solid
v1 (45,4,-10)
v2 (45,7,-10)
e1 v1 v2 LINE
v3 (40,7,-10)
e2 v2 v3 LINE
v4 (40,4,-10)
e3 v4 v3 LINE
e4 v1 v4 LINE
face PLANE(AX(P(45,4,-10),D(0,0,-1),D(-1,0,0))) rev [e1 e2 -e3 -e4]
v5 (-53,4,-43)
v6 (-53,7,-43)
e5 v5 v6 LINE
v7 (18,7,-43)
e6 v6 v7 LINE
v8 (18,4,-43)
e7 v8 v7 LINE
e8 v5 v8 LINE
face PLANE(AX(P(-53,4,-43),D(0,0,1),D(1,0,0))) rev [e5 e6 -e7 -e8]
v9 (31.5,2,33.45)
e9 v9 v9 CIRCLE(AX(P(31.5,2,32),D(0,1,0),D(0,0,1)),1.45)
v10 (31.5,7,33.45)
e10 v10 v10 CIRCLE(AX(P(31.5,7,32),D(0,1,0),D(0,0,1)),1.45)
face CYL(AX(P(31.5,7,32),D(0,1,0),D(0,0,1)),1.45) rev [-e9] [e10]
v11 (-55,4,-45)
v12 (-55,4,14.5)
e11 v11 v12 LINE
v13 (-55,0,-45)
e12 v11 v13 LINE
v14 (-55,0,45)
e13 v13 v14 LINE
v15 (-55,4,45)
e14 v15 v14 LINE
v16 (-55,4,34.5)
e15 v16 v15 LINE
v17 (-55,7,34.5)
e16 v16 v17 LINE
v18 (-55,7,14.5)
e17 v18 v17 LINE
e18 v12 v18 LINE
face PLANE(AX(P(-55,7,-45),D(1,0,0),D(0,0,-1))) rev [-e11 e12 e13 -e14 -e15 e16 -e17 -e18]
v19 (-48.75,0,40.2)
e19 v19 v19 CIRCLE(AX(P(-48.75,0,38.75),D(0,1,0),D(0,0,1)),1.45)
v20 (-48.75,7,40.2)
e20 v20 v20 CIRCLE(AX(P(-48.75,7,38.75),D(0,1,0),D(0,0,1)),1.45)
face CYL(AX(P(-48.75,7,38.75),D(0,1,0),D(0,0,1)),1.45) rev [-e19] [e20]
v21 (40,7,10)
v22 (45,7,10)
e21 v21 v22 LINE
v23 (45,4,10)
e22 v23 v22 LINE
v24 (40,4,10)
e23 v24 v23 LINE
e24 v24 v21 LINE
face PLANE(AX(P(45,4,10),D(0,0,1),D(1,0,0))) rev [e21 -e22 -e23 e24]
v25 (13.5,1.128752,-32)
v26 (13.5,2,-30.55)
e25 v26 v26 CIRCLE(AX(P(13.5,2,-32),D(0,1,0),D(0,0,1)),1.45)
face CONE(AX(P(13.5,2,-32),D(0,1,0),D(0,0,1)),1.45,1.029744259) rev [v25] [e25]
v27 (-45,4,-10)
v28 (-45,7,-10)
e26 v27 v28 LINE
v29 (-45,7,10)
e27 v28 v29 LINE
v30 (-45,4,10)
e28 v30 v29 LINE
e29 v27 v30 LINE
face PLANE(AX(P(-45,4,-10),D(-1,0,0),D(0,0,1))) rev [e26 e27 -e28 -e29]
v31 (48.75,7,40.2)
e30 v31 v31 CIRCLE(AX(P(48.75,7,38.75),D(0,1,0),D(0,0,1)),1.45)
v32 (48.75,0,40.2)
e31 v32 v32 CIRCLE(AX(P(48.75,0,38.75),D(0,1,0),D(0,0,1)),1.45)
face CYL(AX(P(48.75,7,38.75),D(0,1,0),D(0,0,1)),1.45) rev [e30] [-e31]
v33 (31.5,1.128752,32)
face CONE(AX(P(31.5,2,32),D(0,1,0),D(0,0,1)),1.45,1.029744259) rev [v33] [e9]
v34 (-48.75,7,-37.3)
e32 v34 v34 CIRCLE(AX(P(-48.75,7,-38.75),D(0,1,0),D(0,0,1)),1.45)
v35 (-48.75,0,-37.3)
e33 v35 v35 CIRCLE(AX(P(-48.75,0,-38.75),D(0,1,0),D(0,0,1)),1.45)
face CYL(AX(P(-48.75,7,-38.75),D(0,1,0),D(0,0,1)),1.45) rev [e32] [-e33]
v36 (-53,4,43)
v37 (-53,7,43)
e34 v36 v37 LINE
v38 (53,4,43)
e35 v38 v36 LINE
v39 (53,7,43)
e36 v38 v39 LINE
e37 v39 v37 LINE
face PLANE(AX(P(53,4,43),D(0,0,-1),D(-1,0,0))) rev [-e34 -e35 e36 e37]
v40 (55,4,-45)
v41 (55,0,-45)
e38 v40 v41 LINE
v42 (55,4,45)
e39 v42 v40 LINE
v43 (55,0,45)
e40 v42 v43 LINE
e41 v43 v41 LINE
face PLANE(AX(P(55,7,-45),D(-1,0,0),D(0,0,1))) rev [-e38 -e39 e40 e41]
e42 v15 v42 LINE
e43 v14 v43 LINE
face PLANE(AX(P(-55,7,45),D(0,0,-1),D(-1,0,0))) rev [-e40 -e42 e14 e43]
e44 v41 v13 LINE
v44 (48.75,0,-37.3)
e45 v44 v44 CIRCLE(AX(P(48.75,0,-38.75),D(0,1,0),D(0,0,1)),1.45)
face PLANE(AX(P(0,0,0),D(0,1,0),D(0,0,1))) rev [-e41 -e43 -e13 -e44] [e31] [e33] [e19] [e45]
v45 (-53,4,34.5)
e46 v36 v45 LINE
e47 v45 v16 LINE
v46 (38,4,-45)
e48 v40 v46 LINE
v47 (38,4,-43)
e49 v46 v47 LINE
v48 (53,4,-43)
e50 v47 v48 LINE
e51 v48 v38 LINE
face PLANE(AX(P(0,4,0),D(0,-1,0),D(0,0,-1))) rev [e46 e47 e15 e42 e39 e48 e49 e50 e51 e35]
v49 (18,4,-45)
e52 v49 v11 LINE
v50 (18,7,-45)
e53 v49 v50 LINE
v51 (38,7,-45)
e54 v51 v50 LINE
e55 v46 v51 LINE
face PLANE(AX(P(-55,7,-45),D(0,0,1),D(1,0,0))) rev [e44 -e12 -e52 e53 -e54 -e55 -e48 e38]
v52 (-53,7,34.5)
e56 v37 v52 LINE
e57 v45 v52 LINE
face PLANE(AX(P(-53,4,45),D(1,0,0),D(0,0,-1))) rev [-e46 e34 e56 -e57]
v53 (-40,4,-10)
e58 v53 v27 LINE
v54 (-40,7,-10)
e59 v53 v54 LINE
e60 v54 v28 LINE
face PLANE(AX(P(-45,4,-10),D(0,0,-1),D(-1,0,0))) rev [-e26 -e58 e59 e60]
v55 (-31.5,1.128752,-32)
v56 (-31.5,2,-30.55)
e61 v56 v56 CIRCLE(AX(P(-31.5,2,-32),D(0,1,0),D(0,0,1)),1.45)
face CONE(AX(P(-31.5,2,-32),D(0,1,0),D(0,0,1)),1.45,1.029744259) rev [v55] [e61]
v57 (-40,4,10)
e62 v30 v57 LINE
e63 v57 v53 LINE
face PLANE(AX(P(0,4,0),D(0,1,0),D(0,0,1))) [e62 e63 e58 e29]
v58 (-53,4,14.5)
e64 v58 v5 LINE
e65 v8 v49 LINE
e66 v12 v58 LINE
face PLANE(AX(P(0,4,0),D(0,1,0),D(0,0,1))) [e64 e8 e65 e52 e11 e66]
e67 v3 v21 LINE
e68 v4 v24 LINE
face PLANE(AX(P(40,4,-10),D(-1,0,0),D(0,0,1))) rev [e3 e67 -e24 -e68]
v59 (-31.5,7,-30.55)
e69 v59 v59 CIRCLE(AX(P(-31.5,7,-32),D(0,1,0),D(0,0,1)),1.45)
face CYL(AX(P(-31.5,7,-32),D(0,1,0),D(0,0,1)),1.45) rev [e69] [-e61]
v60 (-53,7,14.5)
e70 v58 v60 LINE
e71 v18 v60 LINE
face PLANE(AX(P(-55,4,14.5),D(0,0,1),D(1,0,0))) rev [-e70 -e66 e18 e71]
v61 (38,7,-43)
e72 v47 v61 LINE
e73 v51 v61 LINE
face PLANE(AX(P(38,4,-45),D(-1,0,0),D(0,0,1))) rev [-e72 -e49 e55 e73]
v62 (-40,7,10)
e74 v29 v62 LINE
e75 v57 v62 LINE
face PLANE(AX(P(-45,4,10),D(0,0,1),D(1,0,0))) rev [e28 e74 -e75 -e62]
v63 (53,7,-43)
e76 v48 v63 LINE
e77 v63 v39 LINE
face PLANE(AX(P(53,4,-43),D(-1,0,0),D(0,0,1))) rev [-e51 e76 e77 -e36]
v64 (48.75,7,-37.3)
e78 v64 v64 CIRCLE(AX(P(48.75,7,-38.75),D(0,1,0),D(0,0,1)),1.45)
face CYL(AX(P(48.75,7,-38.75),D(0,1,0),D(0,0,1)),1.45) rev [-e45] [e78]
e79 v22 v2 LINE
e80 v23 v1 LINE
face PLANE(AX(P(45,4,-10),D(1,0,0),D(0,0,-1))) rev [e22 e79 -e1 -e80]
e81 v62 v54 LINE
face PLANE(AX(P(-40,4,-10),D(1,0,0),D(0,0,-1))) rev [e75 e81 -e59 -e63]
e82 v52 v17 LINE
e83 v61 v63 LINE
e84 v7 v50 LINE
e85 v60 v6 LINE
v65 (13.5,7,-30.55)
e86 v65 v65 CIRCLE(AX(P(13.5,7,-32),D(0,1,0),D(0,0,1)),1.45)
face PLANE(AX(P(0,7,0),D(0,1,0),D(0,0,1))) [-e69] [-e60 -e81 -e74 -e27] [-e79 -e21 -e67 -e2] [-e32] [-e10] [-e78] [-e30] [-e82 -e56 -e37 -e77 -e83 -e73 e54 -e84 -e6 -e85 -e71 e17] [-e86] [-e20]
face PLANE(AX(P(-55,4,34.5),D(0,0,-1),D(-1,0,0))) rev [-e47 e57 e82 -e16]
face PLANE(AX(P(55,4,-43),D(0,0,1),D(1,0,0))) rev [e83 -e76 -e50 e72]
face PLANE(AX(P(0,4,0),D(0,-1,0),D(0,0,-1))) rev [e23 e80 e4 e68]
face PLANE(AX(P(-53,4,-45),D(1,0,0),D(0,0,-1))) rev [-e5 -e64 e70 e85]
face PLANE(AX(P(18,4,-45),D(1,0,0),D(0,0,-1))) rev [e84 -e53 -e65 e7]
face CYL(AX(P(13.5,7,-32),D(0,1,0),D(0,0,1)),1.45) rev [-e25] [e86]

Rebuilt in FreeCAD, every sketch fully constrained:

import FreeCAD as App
import Part
import Sketcher

V = App.Vector
Q = App.Units.Quantity


def add_polygon(sketch, points):
    """Adds a closed chain of lines whose ends are joined by coincident constraints."""
    first, n = sketch.GeometryCount, len(points)
    for a, b in zip(points, points[1:] + points[:1]):
        sketch.addGeometry(Part.LineSegment(App.Vector(*a, 0), App.Vector(*b, 0)), False)
    for i in range(n):
        sketch.addConstraint(Sketcher.Constraint("Coincident", first + i, 2, first + (i + 1) % n, 1))

doc = App.newDocument("Part")
params = doc.addObject("Spreadsheet::Sheet", "Params")
for row, (alias, value) in enumerate([
    ("sketch1_width", "110 mm"),
    ("sketch1_height", "90 mm"),
    ("pad1_length", "7 mm"),
    ("sketch2_diameter", "2.9 mm"),
    ("hole_diameter", "2.9 mm"),
    ("hole_depth", "5 mm"),
    ("sketch3_width", "5 mm"),
    ("sketch3_height", "20 mm"),
    ("pocket1_length", "3 mm"),
    ("sketch4_width", "2 mm"),
    ("sketch4_height", "59.5 mm"),
    ("sketch4_height2", "10.5 mm"),
    ("pocket2_length", "3 mm"),
    ("sketch5_width", "71 mm"),
    ("sketch5_width2", "17 mm"),
    ("sketch5_height", "2 mm"),
    ("pocket3_length", "3 mm"),
    ("sketch6_width", "2 mm"),
    ("sketch6_height", "88 mm"),
    ("pocket4_length", "3 mm"),
    ("sketch7_width", "106 mm"),
    ("sketch7_height", "2 mm"),
    ("pocket5_length", "3 mm"),
    ("sketch8_diameter", "2.9 mm"),
    ("hole2_diameter", "2.9 mm"),
], start=1):
    params.set(f"A{row}", alias)
    params.set(f"B{row}", "=" + value)
    params.setAlias(f"B{row}", alias)

body = doc.addObject("PartDesign::Body", "Body")

sketch1 = body.newObject("Sketcher::SketchObject", "Sketch")
sketch1.AttachmentSupport = (doc.getObject("XZ_Plane"), [""])
sketch1.MapMode = "FlatFace"
add_polygon(sketch1, [(-55, -45), (-55, 45), (55, 45), (55, -45)])
sketch1.addConstraint([
    Sketcher.Constraint("Vertical", 0),
    Sketcher.Constraint("Horizontal", 1),
    Sketcher.Constraint("Vertical", 2),
    Sketcher.Constraint("Horizontal", 3),
    Sketcher.Constraint("Symmetric", 0, 2, 2, 2, -1, 1),
    Sketcher.Constraint("DistanceX", 1, 1, 1, 2, Q("110 mm")),
    Sketcher.Constraint("DistanceY", 0, 1, 0, 2, Q("90 mm")),
])
sketch1.setExpression("Constraints[9]", "Params.sketch1_width")
sketch1.setExpression("Constraints[10]", "Params.sketch1_height")
pad1 = body.newObject("PartDesign::Pad", "Pad")
pad1.Profile = sketch1
pad1.setExpression("Length", "Params.pad1_length")
pad1.Reversed = True

sketch2 = body.newObject("Sketcher::SketchObject", "Sketch001")
sketch2.AttachmentSupport = (doc.getObject("XZ_Plane"), [""])
sketch2.MapMode = "FlatFace"
sketch2.AttachmentOffset = App.Placement(V(0, 0, -7), App.Rotation())
sketch2.addGeometry([
    Part.Circle(V(-31.5, -32, 0), V(0, 0, 1), 1.4),
    Part.Circle(V(13.5, -32, 0), V(0, 0, 1), 1.4),
    Part.Circle(V(31.5, 32, 0), V(0, 0, 1), 1.4),
], False)
sketch2.addConstraint([
    Sketcher.Constraint("Equal", 0, 1),
    Sketcher.Constraint("Equal", 1, 2),
    Sketcher.Constraint("Symmetric", 0, 3, 2, 3, -1, 1),
    Sketcher.Constraint("Horizontal", 0, 3, 1, 3),
    Sketcher.Constraint("Diameter", 0, Q("2.9 mm")),
    Sketcher.Constraint("DistanceY", 0, 3, -1, 1, Q("32 mm")),
    Sketcher.Constraint("DistanceX", 0, 3, 1, 3, Q("45 mm")),
    Sketcher.Constraint("DistanceX", 1, 3, 2, 3, Q("18 mm")),
])
sketch2.setExpression("Constraints[4]", "Params.sketch2_diameter")
doc.recompute()
hole = body.newObject("PartDesign::Hole", "Hole")
hole.Profile = sketch2
hole.ThreadType = "None"
hole.setExpression("Diameter", "Params.hole_diameter")
hole.DepthType = "Dimension"
hole.setExpression("Depth", "Params.hole_depth")
hole.DrillPoint = "Angled"
hole.DrillPointAngle = 118
hole.Reversed = True

sketch3 = body.newObject("Sketcher::SketchObject", "Sketch002")
sketch3.AttachmentSupport = (doc.getObject("XZ_Plane"), [""])
sketch3.MapMode = "FlatFace"
sketch3.AttachmentOffset = App.Placement(V(0, 0, -7), App.Rotation())
add_polygon(sketch3, [(-45, -10), (-45, 10), (-40, 10), (-40, -10)])
add_polygon(sketch3, [(40, -10), (40, 10), (45, 10), (45, -10)])
sketch3.addConstraint([
    Sketcher.Constraint("Vertical", 0),
    Sketcher.Constraint("Horizontal", 1),
    Sketcher.Constraint("Vertical", 2),
    Sketcher.Constraint("Horizontal", 3),
    Sketcher.Constraint("Vertical", 4),
    Sketcher.Constraint("Horizontal", 5),
    Sketcher.Constraint("Vertical", 6),
    Sketcher.Constraint("Horizontal", 7),
    Sketcher.Constraint("Symmetric", 2, 2, 4, 2, -1, 1),
    Sketcher.Constraint("Symmetric", 0, 2, 6, 2, -1, 1),
    Sketcher.Constraint("Horizontal", 1, 2, 4, 2),
    Sketcher.Constraint("DistanceX", 1, 1, 1, 2, Q("5 mm")),
    Sketcher.Constraint("DistanceY", 0, 1, 0, 2, Q("20 mm")),
    Sketcher.Constraint("DistanceX", 0, 2, -1, 1, Q("45 mm")),
])
sketch3.setExpression("Constraints[19]", "Params.sketch3_width")
sketch3.setExpression("Constraints[20]", "Params.sketch3_height")
pocket1 = body.newObject("PartDesign::Pocket", "Pocket")
pocket1.Profile = sketch3
pocket1.setExpression("Length", "Params.pocket1_length")
pocket1.Reversed = True

sketch4 = body.newObject("Sketcher::SketchObject", "Sketch003")
sketch4.AttachmentSupport = (doc.getObject("XZ_Plane"), [""])
sketch4.MapMode = "FlatFace"
sketch4.AttachmentOffset = App.Placement(V(0, 0, -7), App.Rotation())
add_polygon(sketch4, [(-55, -45), (-55, 14.5), (-53, 14.5), (-53, -45)])
add_polygon(sketch4, [(-55, 34.5), (-55, 45), (-53, 45), (-53, 34.5)])
sketch4.addConstraint([
    Sketcher.Constraint("Vertical", 0),
    Sketcher.Constraint("Horizontal", 1),
    Sketcher.Constraint("Vertical", 2),
    Sketcher.Constraint("Horizontal", 3),
    Sketcher.Constraint("Vertical", 4),
    Sketcher.Constraint("Horizontal", 5),
    Sketcher.Constraint("Vertical", 6),
    Sketcher.Constraint("Horizontal", 7),
    Sketcher.Constraint("Symmetric", 3, 2, 4, 2, -1),
    Sketcher.Constraint("Vertical", 2, 2, 5, 2),
    Sketcher.Constraint("DistanceX", 1, 1, 1, 2, Q("2 mm")),
    Sketcher.Constraint("DistanceY", 0, 1, 0, 2, Q("59.5 mm")),
    Sketcher.Constraint("DistanceY", 4, 1, 4, 2, Q("10.5 mm")),
    Sketcher.Constraint("DistanceX", 0, 2, -1, 1, Q("55 mm")),
    Sketcher.Constraint("DistanceY", 2, 2, -1, 1, Q("45 mm")),
])
sketch4.setExpression("Constraints[18]", "Params.sketch4_width")
sketch4.setExpression("Constraints[19]", "Params.sketch4_height")
sketch4.setExpression("Constraints[20]", "Params.sketch4_height2")
pocket2 = body.newObject("PartDesign::Pocket", "Pocket001")
pocket2.Profile = sketch4
pocket2.setExpression("Length", "Params.pocket2_length")
pocket2.Reversed = True

sketch5 = body.newObject("Sketcher::SketchObject", "Sketch004")
sketch5.AttachmentSupport = (doc.getObject("XZ_Plane"), [""])
sketch5.MapMode = "FlatFace"
sketch5.AttachmentOffset = App.Placement(V(0, 0, -7), App.Rotation())
add_polygon(sketch5, [(-53, -45), (-53, -43), (18, -43), (18, -45)])
add_polygon(sketch5, [(38, -45), (38, -43), (55, -43), (55, -45)])
sketch5.addConstraint([
    Sketcher.Constraint("Vertical", 0),
    Sketcher.Constraint("Horizontal", 1),
    Sketcher.Constraint("Vertical", 2),
    Sketcher.Constraint("Horizontal", 3),
    Sketcher.Constraint("Vertical", 4),
    Sketcher.Constraint("Horizontal", 5),
    Sketcher.Constraint("Vertical", 6),
    Sketcher.Constraint("Horizontal", 7),
    Sketcher.Constraint("Horizontal", 1, 2, 4, 2),
    Sketcher.Constraint("Horizontal", 3, 2, 6, 2),
    Sketcher.Constraint("DistanceX", 1, 1, 1, 2, Q("71 mm")),
    Sketcher.Constraint("DistanceX", 5, 1, 5, 2, Q("17 mm")),
    Sketcher.Constraint("DistanceY", 0, 1, 0, 2, Q("2 mm")),
    Sketcher.Constraint("DistanceX", 0, 2, -1, 1, Q("53 mm")),
    Sketcher.Constraint("DistanceY", 0, 2, -1, 1, Q("43 mm")),
    Sketcher.Constraint("DistanceX", -1, 1, 4, 2, Q("38 mm")),
])
sketch5.setExpression("Constraints[18]", "Params.sketch5_width")
sketch5.setExpression("Constraints[19]", "Params.sketch5_width2")
sketch5.setExpression("Constraints[20]", "Params.sketch5_height")
pocket3 = body.newObject("PartDesign::Pocket", "Pocket002")
pocket3.Profile = sketch5
pocket3.setExpression("Length", "Params.pocket3_length")
pocket3.Reversed = True

sketch6 = body.newObject("Sketcher::SketchObject", "Sketch005")
sketch6.AttachmentSupport = (doc.getObject("XZ_Plane"), [""])
sketch6.MapMode = "FlatFace"
sketch6.AttachmentOffset = App.Placement(V(0, 0, -7), App.Rotation())
add_polygon(sketch6, [(53, -43), (53, 45), (55, 45), (55, -43)])
sketch6.addConstraint([
    Sketcher.Constraint("Vertical", 0),
    Sketcher.Constraint("Horizontal", 1),
    Sketcher.Constraint("Vertical", 2),
    Sketcher.Constraint("Horizontal", 3),
    Sketcher.Constraint("DistanceX", 1, 1, 1, 2, Q("2 mm")),
    Sketcher.Constraint("DistanceY", 0, 1, 0, 2, Q("88 mm")),
    Sketcher.Constraint("DistanceX", -1, 1, 0, 2, Q("53 mm")),
    Sketcher.Constraint("DistanceY", -1, 1, 0, 2, Q("45 mm")),
])
sketch6.setExpression("Constraints[8]", "Params.sketch6_width")
sketch6.setExpression("Constraints[9]", "Params.sketch6_height")
pocket4 = body.newObject("PartDesign::Pocket", "Pocket003")
pocket4.Profile = sketch6
pocket4.setExpression("Length", "Params.pocket4_length")
pocket4.Reversed = True

sketch7 = body.newObject("Sketcher::SketchObject", "Sketch006")
sketch7.AttachmentSupport = (doc.getObject("XZ_Plane"), [""])
sketch7.MapMode = "FlatFace"
sketch7.AttachmentOffset = App.Placement(V(0, 0, -7), App.Rotation())
add_polygon(sketch7, [(-53, 43), (-53, 45), (53, 45), (53, 43)])
sketch7.addConstraint([
    Sketcher.Constraint("Vertical", 0),
    Sketcher.Constraint("Horizontal", 1),
    Sketcher.Constraint("Vertical", 2),
    Sketcher.Constraint("Horizontal", 3),
    Sketcher.Constraint("DistanceX", 1, 1, 1, 2, Q("106 mm")),
    Sketcher.Constraint("DistanceY", 0, 1, 0, 2, Q("2 mm")),
    Sketcher.Constraint("DistanceX", 0, 2, -1, 1, Q("53 mm")),
    Sketcher.Constraint("DistanceY", -1, 1, 0, 2, Q("45 mm")),
])
sketch7.setExpression("Constraints[8]", "Params.sketch7_width")
sketch7.setExpression("Constraints[9]", "Params.sketch7_height")
pocket5 = body.newObject("PartDesign::Pocket", "Pocket004")
pocket5.Profile = sketch7
pocket5.setExpression("Length", "Params.pocket5_length")
pocket5.Reversed = True

sketch8 = body.newObject("Sketcher::SketchObject", "Sketch007")
sketch8.AttachmentSupport = (doc.getObject("XZ_Plane"), [""])
sketch8.MapMode = "FlatFace"
sketch8.AttachmentOffset = App.Placement(V(0, 0, -7), App.Rotation())
sketch8.addGeometry([
    Part.Circle(V(48.8, -38.8, 0), V(0, 0, 1), 1.4),
    Part.Circle(V(-48.8, -38.8, 0), V(0, 0, 1), 1.4),
    Part.Circle(V(48.8, 38.8, 0), V(0, 0, 1), 1.4),
    Part.Circle(V(-48.8, 38.8, 0), V(0, 0, 1), 1.4),
], False)
sketch8.addConstraint([
    Sketcher.Constraint("Equal", 0, 1),
    Sketcher.Constraint("Equal", 1, 2),
    Sketcher.Constraint("Equal", 2, 3),
    Sketcher.Constraint("Symmetric", 1, 3, 2, 3, -1, 1),
    Sketcher.Constraint("Symmetric", 0, 3, 3, 3, -1, 1),
    Sketcher.Constraint("Symmetric", 0, 3, 1, 3, -2),
    Sketcher.Constraint("Diameter", 0, Q("2.9 mm")),
    Sketcher.Constraint("DistanceX", 1, 3, 0, 3, Q("97.5 mm")),
    Sketcher.Constraint("DistanceY", 0, 3, 2, 3, Q("77.5 mm")),
])
sketch8.setExpression("Constraints[6]", "Params.sketch8_diameter")
doc.recompute()
hole2 = body.newObject("PartDesign::Hole", "Hole001")
hole2.Profile = sketch8
hole2.ThreadType = "None"
hole2.setExpression("Diameter", "Params.hole2_diameter")
hole2.DepthType = "ThroughAll"
hole2.Reversed = True

doc.recompute()
